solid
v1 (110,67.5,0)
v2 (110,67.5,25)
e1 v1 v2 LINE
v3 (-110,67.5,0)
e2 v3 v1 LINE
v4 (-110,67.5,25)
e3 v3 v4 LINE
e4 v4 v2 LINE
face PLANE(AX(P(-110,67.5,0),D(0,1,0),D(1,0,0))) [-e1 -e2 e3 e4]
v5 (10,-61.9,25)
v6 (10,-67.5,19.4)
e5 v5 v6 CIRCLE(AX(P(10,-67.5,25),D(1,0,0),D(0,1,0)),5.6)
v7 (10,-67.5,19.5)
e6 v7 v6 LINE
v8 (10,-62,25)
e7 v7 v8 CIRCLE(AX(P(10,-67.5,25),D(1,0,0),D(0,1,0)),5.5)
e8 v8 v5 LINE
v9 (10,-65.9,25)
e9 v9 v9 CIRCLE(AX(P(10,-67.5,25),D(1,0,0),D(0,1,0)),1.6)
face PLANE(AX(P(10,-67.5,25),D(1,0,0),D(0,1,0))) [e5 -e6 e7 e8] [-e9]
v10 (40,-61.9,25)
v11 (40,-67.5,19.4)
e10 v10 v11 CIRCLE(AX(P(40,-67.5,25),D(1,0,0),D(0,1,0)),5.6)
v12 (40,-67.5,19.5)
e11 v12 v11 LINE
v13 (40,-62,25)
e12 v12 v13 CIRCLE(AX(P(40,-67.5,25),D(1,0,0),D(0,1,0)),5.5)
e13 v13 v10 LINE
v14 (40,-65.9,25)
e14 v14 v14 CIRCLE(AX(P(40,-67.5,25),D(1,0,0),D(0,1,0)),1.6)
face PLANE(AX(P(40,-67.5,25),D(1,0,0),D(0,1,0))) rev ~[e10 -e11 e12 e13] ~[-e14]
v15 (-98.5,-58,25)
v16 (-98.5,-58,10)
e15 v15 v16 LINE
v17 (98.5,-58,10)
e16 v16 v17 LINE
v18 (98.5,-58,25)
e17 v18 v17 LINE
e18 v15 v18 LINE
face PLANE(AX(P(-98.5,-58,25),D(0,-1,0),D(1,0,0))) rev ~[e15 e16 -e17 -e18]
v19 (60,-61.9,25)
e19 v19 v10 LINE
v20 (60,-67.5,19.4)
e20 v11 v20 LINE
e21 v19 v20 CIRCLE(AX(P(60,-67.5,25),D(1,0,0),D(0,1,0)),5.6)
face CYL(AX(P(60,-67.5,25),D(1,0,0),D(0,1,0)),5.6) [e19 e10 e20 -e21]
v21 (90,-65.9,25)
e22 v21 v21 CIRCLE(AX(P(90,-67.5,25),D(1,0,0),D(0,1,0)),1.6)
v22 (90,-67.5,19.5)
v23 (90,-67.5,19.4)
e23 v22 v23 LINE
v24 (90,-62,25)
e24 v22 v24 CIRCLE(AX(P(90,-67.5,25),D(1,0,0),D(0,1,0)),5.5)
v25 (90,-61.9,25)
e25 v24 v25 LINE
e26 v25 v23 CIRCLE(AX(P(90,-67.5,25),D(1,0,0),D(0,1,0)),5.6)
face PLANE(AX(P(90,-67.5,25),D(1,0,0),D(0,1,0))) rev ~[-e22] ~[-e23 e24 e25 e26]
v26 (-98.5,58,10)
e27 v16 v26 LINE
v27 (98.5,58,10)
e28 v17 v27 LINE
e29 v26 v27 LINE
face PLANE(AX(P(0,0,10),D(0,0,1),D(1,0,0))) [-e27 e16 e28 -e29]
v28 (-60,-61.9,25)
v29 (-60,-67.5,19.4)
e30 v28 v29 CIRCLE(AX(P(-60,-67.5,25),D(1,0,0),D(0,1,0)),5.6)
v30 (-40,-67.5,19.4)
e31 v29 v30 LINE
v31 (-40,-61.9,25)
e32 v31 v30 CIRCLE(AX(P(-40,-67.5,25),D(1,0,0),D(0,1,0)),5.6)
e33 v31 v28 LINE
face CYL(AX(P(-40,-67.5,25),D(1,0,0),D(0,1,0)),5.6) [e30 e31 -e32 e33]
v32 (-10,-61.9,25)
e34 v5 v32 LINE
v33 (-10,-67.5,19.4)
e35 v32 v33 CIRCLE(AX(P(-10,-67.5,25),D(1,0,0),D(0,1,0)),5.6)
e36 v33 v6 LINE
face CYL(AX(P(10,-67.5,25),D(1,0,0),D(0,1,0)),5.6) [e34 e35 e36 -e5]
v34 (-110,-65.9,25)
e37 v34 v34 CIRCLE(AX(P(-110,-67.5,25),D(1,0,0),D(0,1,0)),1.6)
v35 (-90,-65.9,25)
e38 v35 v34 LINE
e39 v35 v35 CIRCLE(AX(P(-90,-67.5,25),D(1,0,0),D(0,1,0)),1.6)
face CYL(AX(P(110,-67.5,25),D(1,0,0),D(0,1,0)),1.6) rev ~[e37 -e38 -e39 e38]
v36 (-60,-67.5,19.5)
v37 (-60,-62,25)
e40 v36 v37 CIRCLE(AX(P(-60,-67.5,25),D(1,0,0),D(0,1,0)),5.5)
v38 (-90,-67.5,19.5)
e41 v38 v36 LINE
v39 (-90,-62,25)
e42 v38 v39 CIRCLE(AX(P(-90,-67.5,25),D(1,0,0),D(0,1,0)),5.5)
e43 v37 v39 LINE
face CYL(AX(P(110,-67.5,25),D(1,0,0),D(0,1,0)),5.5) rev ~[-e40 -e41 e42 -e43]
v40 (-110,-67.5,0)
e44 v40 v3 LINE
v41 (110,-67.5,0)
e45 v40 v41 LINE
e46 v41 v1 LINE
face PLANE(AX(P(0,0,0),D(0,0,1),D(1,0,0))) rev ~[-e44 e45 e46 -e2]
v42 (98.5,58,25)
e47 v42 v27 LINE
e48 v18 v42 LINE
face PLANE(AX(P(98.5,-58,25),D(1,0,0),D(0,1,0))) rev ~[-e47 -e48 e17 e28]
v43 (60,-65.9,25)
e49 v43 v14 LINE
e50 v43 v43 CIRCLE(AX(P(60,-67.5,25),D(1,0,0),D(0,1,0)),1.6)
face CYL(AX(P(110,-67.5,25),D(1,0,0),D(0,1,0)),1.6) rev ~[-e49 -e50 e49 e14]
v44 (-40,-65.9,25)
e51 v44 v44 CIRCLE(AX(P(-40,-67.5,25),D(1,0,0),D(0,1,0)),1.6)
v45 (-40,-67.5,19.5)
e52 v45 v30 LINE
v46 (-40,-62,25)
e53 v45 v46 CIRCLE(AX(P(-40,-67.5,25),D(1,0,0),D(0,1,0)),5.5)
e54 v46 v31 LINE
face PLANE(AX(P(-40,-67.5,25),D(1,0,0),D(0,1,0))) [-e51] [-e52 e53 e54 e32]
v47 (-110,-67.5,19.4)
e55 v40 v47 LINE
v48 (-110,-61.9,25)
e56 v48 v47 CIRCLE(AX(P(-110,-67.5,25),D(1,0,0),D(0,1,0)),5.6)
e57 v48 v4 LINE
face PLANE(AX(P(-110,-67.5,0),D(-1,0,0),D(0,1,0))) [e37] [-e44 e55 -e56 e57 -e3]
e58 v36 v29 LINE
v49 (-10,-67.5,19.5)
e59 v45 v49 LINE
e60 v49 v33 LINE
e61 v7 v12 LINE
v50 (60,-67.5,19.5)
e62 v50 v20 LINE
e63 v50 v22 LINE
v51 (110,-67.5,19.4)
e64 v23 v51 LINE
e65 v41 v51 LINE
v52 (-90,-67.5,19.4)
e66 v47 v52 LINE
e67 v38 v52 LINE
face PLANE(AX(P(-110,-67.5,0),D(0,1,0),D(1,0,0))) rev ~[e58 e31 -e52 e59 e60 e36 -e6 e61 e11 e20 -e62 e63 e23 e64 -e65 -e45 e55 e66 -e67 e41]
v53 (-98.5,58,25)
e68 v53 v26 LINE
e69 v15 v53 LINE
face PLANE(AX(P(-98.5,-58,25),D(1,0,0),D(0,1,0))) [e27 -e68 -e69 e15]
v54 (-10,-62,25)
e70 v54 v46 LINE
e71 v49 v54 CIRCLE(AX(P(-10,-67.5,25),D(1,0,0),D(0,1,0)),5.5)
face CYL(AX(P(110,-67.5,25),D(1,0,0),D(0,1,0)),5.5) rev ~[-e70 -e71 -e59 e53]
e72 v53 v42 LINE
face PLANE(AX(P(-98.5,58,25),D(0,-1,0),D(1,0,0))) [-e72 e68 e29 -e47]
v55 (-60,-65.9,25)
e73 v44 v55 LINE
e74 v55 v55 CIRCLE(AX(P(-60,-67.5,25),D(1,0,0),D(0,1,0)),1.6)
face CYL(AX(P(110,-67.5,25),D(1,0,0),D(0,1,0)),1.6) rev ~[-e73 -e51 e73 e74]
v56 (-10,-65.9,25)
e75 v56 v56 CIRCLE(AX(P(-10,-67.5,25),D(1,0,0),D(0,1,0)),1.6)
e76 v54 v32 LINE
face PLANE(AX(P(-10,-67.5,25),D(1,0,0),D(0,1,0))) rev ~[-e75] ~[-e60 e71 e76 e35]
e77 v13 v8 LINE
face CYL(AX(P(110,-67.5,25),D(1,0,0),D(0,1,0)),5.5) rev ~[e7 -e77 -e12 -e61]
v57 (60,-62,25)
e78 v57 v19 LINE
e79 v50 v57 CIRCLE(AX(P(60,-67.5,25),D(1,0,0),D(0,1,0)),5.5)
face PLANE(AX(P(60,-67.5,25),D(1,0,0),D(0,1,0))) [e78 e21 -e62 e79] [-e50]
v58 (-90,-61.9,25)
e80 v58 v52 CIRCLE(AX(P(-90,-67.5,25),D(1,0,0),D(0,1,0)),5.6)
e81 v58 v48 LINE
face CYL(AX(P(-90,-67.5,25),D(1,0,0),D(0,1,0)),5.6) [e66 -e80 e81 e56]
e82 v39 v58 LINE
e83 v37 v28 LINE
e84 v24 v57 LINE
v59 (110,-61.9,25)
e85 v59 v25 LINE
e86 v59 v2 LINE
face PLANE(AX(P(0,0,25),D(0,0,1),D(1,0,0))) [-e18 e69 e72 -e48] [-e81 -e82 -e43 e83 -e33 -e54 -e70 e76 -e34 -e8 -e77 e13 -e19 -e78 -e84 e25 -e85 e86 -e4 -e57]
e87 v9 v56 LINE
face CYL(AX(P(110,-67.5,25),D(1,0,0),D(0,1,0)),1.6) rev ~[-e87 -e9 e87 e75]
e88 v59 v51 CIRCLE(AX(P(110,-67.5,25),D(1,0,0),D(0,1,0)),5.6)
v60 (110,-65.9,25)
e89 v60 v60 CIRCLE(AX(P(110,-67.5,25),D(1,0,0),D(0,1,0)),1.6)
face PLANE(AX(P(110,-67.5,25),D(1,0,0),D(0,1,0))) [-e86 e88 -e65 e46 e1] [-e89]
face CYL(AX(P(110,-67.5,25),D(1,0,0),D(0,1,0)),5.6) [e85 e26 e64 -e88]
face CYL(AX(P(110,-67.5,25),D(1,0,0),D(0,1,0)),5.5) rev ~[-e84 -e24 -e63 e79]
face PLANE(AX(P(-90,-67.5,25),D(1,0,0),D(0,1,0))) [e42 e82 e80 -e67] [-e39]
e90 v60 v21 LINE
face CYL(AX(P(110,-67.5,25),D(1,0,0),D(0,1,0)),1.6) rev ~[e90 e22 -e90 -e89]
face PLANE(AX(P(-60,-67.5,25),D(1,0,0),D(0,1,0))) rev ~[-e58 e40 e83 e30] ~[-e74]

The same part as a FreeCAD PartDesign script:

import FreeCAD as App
import Part
import Sketcher
from FreeCAD import Vector
Q = App.Units.Quantity

doc = App.newDocument("Part")
body = doc.addObject("PartDesign::Body", "Body")

# Sketch on XY plane
sketch1 = body.newObject("Sketcher::SketchObject", "Sketch")
sketch1.AttachmentSupport = (doc.getObject("XY_Plane"), [""])
sketch1.MapMode = "FlatFace"
sketch1.addGeometry([
    Part.LineSegment(Vector(-110, 67.5, 0), Vector(-110, -67.5, 0)),
    Part.LineSegment(Vector(-110, -67.5, 0), Vector(110, -67.5, 0)),
    Part.LineSegment(Vector(110, -67.5, 0), Vector(110, 67.5, 0)),
    Part.LineSegment(Vector(110, 67.5, 0), Vector(-110, 67.5, 0)),
], False)
sketch1.addConstraint([
    Sketcher.Constraint("Coincident", 0, 2, 1, 1),
    Sketcher.Constraint("Coincident", 1, 2, 2, 1),
    Sketcher.Constraint("Coincident", 2, 2, 3, 1),
    Sketcher.Constraint("Coincident", 3, 2, 0, 1),
    Sketcher.Constraint("Vertical", 0),
    Sketcher.Constraint("Horizontal", 1),
    Sketcher.Constraint("Vertical", 2),
    Sketcher.Constraint("Horizontal", 3),
    Sketcher.Constraint("Symmetric", 0, 2, 2, 2, -1, 1),
    Sketcher.Constraint("DistanceX", 1, 1, 1, 2, Q("220 mm")),
    Sketcher.Constraint("DistanceY", 0, 2, 0, 1, Q("135 mm")),
])
pad1 = body.newObject("PartDesign::Pad", "Pad")
pad1.Profile = sketch1
pad1.Length = 25

# Sketch on XY plane
sketch2 = body.newObject("Sketcher::SketchObject", "Sketch001")
sketch2.AttachmentSupport = (doc.getObject("XY_Plane"), [""])
sketch2.MapMode = "FlatFace"
sketch2.AttachmentOffset = App.Placement(Vector(0, 0, 25), App.Rotation())
sketch2.addGeometry([
    Part.LineSegment(Vector(-98.5, 58, 0), Vector(-98.5, -58, 0)),
    Part.LineSegment(Vector(-98.5, -58, 0), Vector(98.5, -58, 0)),
    Part.LineSegment(Vector(98.5, -58, 0), Vector(98.5, 58, 0)),
    Part.LineSegment(Vector(98.5, 58, 0), Vector(-98.5, 58, 0)),
], False)
sketch2.addConstraint([
    Sketcher.Constraint("Coincident", 0, 2, 1, 1),
    Sketcher.Constraint("Coincident", 1, 2, 2, 1),
    Sketcher.Constraint("Coincident", 2, 2, 3, 1),
    Sketcher.Constraint("Coincident", 3, 2, 0, 1),
    Sketcher.Constraint("Vertical", 0),
    Sketcher.Constraint("Horizontal", 1),
    Sketcher.Constraint("Vertical", 2),
    Sketcher.Constraint("Horizontal", 3),
    Sketcher.Constraint("Symmetric", 0, 2, 2, 2, -1, 1),
    Sketcher.Constraint("DistanceX", 1, 1, 1, 2, Q("197 mm")),
    Sketcher.Constraint("DistanceY", 0, 2, 0, 1, Q("116 mm")),
])
pocket1 = body.newObject("PartDesign::Pocket", "Pocket")
pocket1.Profile = sketch2
pocket1.Length = 15

# Sketch on YZ plane
sketch3 = body.newObject("Sketcher::SketchObject", "Sketch002")
sketch3.AttachmentSupport = (doc.getObject("YZ_Plane"), [""])
sketch3.MapMode = "FlatFace"
sketch3.AttachmentOffset = App.Placement(Vector(0, 0, 110), App.Rotation())
sketch3.addGeometry(Part.Circle(Vector(-67.5, 25, 0), Vector(0, 0, 1), 5.5), False)
sketch3.addConstraint([
    Sketcher.Constraint("Diameter", 0, Q("11 mm")),
    Sketcher.Constraint("DistanceY", -1, 1, 0, 3, Q("25 mm")),
    Sketcher.Constraint("DistanceX", 0, 3, -1, 1, Q("67.5 mm")),
])
pocket2 = body.newObject("PartDesign::Pocket", "Pocket001")
pocket2.Profile = sketch3
pocket2.Type = "ThroughAll"

# Sketch on YZ plane
sketch4 = body.newObject("Sketcher::SketchObject", "Sketch003")
sketch4.AttachmentSupport = (doc.getObject("YZ_Plane"), [""])
sketch4.MapMode = "FlatFace"
sketch4.AttachmentOffset = App.Placement(Vector(0, 0, 110), App.Rotation())
sketch4.addGeometry(Part.Circle(Vector(-67.5, 25, 0), Vector(0, 0, 1), 5.6), False)
sketch4.addConstraint([
    Sketcher.Constraint("Diameter", 0, Q("11.2 mm")),
    Sketcher.Constraint("DistanceY", -1, 1, 0, 3, Q("25 mm")),
    Sketcher.Constraint("DistanceX", 0, 3, -1, 1, Q("67.5 mm")),
])
pad2 = body.newObject("PartDesign::Pad", "Pad001")
pad2.Profile = sketch4
pad2.Length = 20
pad2.Reversed = True
doc.recompute()

linearpattern = body.newObject("PartDesign::LinearPattern", "LinearPattern")
linearpattern.Originals = [pad2]
linearpattern.Direction = (doc.getObject("X_Axis"), [""])
linearpattern.Mode = "offset"
linearpattern.Offset = 50
linearpattern.Occurrences = 5
linearpattern.Reversed = True
body.Tip = linearpattern

# Sketch on YZ plane
sketch5 = body.newObject("Sketcher::SketchObject", "Sketch004")
sketch5.AttachmentSupport = (doc.getObject("YZ_Plane"), [""])
sketch5.MapMode = "FlatFace"
sketch5.AttachmentOffset = App.Placement(Vector(0, 0, 110), App.Rotation())
sketch5.addGeometry(Part.Circle(Vector(-67.5, 25, 0), Vector(0, 0, 1), 1.6), False)
sketch5.addConstraint([
    Sketcher.Constraint("Diameter", 0, Q("3.2 mm")),
    Sketcher.Constraint("DistanceY", -1, 1, 0, 3, Q("25 mm")),
    Sketcher.Constraint("DistanceX", 0, 3, -1, 1, Q("67.5 mm")),
])
pocket3 = body.newObject("PartDesign::Pocket", "Pocket002")
pocket3.Profile = sketch5
pocket3.Type = "ThroughAll"

doc.recompute()
